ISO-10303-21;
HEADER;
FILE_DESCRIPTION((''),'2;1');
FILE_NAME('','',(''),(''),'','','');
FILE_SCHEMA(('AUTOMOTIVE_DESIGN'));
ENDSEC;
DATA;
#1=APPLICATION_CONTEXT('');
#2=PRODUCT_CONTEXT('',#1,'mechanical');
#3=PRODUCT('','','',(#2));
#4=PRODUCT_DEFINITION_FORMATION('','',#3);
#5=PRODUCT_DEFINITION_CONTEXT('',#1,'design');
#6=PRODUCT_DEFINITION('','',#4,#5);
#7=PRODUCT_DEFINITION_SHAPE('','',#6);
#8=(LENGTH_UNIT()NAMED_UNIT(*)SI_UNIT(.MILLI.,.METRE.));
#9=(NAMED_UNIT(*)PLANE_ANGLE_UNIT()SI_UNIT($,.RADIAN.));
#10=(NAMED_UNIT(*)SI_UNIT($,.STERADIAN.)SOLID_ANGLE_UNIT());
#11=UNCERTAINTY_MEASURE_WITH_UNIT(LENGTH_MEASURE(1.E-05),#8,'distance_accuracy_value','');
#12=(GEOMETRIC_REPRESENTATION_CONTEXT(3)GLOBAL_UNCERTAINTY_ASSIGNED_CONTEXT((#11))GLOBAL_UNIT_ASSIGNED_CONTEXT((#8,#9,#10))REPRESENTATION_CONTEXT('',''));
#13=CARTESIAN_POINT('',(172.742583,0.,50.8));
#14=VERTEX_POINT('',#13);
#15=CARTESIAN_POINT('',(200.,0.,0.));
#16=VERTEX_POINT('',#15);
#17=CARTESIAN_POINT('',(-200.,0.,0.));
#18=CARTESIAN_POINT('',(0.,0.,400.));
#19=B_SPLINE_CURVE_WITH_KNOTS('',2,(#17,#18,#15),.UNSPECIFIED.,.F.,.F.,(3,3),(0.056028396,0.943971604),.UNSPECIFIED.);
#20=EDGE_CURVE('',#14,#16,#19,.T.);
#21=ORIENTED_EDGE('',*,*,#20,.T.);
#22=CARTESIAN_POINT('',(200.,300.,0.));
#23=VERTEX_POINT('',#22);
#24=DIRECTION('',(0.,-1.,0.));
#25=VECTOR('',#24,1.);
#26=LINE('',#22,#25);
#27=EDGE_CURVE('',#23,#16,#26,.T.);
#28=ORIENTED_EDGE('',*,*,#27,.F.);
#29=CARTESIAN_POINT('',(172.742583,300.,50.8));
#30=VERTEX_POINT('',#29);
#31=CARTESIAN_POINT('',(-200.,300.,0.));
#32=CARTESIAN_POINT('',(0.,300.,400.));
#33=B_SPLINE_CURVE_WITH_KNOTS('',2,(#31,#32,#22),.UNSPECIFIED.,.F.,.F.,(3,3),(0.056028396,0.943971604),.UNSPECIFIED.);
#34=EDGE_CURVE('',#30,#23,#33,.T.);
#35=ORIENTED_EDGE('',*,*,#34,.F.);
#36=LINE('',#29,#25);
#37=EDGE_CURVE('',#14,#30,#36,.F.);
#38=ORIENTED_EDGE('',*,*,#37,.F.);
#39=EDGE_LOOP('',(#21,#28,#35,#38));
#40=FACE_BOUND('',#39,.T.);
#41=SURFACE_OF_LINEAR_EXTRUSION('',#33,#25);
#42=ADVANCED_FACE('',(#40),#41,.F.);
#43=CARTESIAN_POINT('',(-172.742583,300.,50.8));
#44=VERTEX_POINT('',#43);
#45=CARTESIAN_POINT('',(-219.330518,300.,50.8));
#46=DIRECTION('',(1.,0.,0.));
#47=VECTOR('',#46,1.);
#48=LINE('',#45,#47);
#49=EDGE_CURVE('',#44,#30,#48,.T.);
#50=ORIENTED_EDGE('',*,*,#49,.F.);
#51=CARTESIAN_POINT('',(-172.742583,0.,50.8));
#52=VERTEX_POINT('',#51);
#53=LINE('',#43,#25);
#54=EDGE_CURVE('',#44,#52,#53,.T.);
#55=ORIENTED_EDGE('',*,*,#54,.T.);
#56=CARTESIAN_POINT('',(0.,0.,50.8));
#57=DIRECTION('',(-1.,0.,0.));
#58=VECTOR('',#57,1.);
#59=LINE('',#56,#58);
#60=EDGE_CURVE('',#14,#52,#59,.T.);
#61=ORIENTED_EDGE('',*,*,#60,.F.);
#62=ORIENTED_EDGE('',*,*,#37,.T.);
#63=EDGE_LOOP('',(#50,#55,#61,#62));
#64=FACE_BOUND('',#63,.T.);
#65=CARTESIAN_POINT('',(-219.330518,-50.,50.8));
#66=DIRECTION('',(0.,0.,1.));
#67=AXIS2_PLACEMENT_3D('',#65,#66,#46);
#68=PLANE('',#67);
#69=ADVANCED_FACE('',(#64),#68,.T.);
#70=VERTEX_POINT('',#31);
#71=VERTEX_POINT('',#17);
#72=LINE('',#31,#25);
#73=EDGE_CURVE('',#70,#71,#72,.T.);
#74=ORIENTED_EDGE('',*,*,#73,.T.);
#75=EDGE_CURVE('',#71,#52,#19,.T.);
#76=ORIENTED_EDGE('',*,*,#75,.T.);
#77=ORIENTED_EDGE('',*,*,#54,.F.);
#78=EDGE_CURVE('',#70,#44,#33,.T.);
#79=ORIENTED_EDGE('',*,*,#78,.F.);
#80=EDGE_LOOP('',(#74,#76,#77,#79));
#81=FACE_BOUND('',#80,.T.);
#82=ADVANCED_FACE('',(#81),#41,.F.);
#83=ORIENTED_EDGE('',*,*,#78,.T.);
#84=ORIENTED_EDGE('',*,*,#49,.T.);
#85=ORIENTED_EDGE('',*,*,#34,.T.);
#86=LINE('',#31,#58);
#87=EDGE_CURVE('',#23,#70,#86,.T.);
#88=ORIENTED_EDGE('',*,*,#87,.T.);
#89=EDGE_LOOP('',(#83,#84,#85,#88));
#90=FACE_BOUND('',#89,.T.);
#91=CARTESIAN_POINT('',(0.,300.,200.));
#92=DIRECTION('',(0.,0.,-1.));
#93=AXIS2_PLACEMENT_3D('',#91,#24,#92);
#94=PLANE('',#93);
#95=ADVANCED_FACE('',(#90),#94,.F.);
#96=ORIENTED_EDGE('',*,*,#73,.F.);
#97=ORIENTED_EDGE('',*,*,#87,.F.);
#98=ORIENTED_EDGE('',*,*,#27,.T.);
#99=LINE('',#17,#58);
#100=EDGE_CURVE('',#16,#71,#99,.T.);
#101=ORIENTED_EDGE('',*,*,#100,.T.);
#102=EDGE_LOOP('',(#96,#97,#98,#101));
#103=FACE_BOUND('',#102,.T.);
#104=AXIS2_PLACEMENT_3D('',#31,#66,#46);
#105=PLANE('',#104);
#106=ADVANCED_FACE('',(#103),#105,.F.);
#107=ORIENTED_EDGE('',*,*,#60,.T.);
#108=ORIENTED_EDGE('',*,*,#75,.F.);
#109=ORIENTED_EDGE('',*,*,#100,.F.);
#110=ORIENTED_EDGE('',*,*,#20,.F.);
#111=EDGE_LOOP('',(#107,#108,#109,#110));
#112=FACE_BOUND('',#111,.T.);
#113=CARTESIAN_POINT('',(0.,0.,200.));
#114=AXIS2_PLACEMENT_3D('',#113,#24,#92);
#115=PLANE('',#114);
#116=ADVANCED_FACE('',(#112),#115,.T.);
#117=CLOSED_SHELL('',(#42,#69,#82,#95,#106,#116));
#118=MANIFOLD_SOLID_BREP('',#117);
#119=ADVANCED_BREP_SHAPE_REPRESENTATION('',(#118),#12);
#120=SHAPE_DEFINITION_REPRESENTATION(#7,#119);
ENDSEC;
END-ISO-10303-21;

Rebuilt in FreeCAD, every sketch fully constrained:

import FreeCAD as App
import Part
import Sketcher
Q = App.Units.Quantity


def add_polygon(sketch, points):
    """Adds a closed chain of lines whose ends are joined by coincident constraints."""
    first, n = sketch.GeometryCount, len(points)
    for a, b in zip(points, points[1:] + points[:1]):
        sketch.addGeometry(Part.LineSegment(App.Vector(*a, 0), App.Vector(*b, 0)), False)
    for i in range(n):
        sketch.addConstraint(Sketcher.Constraint("Coincident", first + i, 2, first + (i + 1) % n, 1))

doc = App.newDocument("Part")
body = doc.addObject("PartDesign::Body", "Body")

# Sketch on XZ plane
sketch1 = body.newObject("Sketcher::SketchObject", "Sketch")
sketch1.AttachmentSupport = (doc.getObject("XZ_Plane"), [""])
sketch1.MapMode = "FlatFace"
sketch1.addGeometry(Part.LineSegment(App.Vector(200, 0, 0), App.Vector(-200, 0, 0)), False)
sketch1.addGeometry(Part.BSplineCurve([App.Vector(-200, 0, 0), App.Vector(0, 400, 0), App.Vector(200, 0, 0)], [3, 3], [0.056028396, 0.943971604], False, 2, [1, 1, 1], False), False)
sketch1.addConstraint(Sketcher.Constraint("Block", 1))
sketch1.addConstraint(Sketcher.Constraint("Coincident", 0, 1, 1, 2))
sketch1.addConstraint(Sketcher.Constraint("Coincident", 1, 1, 0, 2))
pad1 = body.newObject("PartDesign::Pad", "Pad")
pad1.Profile = sketch1
pad1.Length = 300
pad1.Reversed = True

# Sketch on XZ plane
sketch2 = body.newObject("Sketcher::SketchObject", "Sketch001")
sketch2.AttachmentSupport = (doc.getObject("XZ_Plane"), [""])
sketch2.MapMode = "FlatFace"
sketch2.AttachmentOffset = App.Placement(App.Vector(0, 0, -300), App.Rotation())
add_polygon(sketch2, [(-219, 51), (-219, 251), (242, 251), (242, 51)])  # lines 0-3
sketch2.addConstraint(Sketcher.Constraint("Vertical", 0))
sketch2.addConstraint(Sketcher.Constraint("Horizontal", 1))
sketch2.addConstraint(Sketcher.Constraint("Vertical", 2))
sketch2.addConstraint(Sketcher.Constraint("Horizontal", 3))
sketch2.addConstraint(Sketcher.Constraint("DistanceY", 0, 1, 0, 2, Q("200 mm")))
sketch2.addConstraint(Sketcher.Constraint("DistanceY", -1, 1, 0, 2, Q("250.8 mm")))
sketch2.addConstraint(Sketcher.Constraint("DistanceX", 1, 1, 1, 2, Q("461.235922 mm")))
sketch2.addConstraint(Sketcher.Constraint("DistanceX", 0, 2, -1, 1, Q("219.330518 mm")))
pocket1 = body.newObject("PartDesign::Pocket", "Pocket")
pocket1.Profile = sketch2
pocket1.Length = 350
pocket1.Reversed = True

doc.recompute()
